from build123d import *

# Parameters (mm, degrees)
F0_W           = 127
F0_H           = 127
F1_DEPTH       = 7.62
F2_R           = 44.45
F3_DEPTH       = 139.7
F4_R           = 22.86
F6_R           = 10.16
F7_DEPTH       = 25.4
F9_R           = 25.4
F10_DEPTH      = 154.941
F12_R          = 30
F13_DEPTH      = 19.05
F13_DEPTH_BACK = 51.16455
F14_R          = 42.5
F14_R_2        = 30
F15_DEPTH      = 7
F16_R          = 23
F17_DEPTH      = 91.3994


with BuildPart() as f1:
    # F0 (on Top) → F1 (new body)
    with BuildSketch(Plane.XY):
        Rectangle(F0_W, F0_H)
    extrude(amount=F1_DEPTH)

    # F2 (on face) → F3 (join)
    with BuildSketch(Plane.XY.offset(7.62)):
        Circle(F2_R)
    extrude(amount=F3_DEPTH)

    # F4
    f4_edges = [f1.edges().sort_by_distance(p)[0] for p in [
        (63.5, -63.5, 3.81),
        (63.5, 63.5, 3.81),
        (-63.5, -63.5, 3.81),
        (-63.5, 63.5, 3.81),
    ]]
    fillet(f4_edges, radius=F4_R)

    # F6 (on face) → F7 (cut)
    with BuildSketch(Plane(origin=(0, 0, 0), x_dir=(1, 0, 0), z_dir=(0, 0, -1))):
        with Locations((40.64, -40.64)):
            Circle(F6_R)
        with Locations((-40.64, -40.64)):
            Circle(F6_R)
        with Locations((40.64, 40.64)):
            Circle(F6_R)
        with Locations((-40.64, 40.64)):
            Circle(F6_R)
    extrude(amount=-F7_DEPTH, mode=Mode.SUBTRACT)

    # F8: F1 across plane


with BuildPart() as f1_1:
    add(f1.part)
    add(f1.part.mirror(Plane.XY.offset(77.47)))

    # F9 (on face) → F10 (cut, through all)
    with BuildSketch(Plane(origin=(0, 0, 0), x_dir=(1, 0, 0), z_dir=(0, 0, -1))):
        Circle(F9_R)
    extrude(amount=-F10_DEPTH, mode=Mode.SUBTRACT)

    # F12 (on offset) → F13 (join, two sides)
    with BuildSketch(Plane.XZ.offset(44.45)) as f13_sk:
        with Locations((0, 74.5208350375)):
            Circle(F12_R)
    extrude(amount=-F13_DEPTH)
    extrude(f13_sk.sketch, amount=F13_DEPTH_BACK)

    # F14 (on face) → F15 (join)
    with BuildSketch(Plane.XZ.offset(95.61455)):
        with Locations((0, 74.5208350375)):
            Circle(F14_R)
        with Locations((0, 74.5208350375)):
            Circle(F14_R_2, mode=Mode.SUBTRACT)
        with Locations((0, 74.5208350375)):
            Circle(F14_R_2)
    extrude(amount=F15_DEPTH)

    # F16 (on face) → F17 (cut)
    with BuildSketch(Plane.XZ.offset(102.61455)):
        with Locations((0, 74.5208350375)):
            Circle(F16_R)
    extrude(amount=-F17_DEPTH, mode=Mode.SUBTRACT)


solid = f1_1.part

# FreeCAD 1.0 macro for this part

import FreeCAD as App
import Part
import Sketcher
Q = App.Units.Quantity


def edges_at(feature, points):
    """Names of the edges that pass closest to the given points."""
    edges = feature.Shape.Edges
    near = lambda p: min(range(len(edges)), key=lambda i: edges[i].distToShape(Part.Vertex(*p))[0])
    return sorted({f"Edge{near(p) + 1}" for p in points})

doc = App.newDocument("Part")
params = doc.addObject("Spreadsheet::Sheet", "Params")
for row, (alias, value) in enumerate([
    ("sketch1_width", "5 in"),
    ("pad1_length", "0.3 in"),
    ("sketch2_diameter", "3.5 in"),
    ("pad2_length", "5.5 in"),
    ("fillet_radius", "0.9 in"),
    ("sketch3_diameter", "0.8 in"),
    ("pocket1_length", "1 in"),
    ("sketch4_diameter", "2 in"),
    ("pad3_length", "0.75 in"),
    ("pad3_length2", "51.16455 mm"),
    ("pad4_length", "7 mm"),
    ("pocket3_length", "91.3994 mm"),
], start=1):
    params.set(f"A{row}", alias)
    params.set(f"B{row}", "=" + value)
    params.setAlias(f"B{row}", alias)

body = doc.addObject("PartDesign::Body", "Body")

# Sketch on XY plane
sketch1 = doc.addObject("Sketcher::SketchObject", "Sketch")
body.addObject(sketch1)
sketch1.AttachmentSupport = (doc.XY_Plane, [""])
sketch1.MapMode = "FlatFace"
sketch1.addGeometry([
    Part.LineSegment(App.Vector(-64, 64, 0), App.Vector(-64, -64, 0)),
    Part.LineSegment(App.Vector(-64, -64, 0), App.Vector(64, -64, 0)),
    Part.LineSegment(App.Vector(64, -64, 0), App.Vector(64, 64, 0)),
    Part.LineSegment(App.Vector(64, 64, 0), App.Vector(-64, 64, 0)),
], False)
sketch1.addConstraint([
    Sketcher.Constraint("Coincident", 0, 2, 1, 1),
    Sketcher.Constraint("Coincident", 1, 2, 2, 1),
    Sketcher.Constraint("Coincident", 2, 2, 3, 1),
    Sketcher.Constraint("Coincident", 3, 2, 0, 1),
    Sketcher.Constraint("Vertical", 0),
    Sketcher.Constraint("Horizontal", 1),
    Sketcher.Constraint("Vertical", 2),
    Sketcher.Constraint("Horizontal", 3),
    Sketcher.Constraint("Symmetric", 0, 2, 2, 2, -1, 1),
    Sketcher.Constraint("Equal", 3, 0),
    Sketcher.Constraint("DistanceX", 1, 1, 1, 2, Q("5 in")),
])
sketch1.setExpression("Constraints[10]", "Params.sketch1_width")
pad1 = doc.addObject("PartDesign::Pad", "Pad")
body.addObject(pad1)
pad1.Profile = sketch1
pad1.setExpression("Length", "Params.pad1_length")

# Sketch on XY plane
sketch2 = doc.addObject("Sketcher::SketchObject", "Sketch001")
body.addObject(sketch2)
sketch2.AttachmentSupport = (doc.XY_Plane, [""])
sketch2.MapMode = "FlatFace"
sketch2.AttachmentOffset = App.Placement(App.Vector(0, 0, 0.3 * 25.4), App.Rotation())
sketch2.addGeometry(Part.Circle(App.Vector(0, 0, 0), App.Vector(0, 0, 1), 44), False)
sketch2.addConstraint([
    Sketcher.Constraint("Coincident", 0, 3, -1, 1),
    Sketcher.Constraint("Diameter", 0, Q("3.5 in")),
])
sketch2.setExpression("Constraints[1]", "Params.sketch2_diameter")
pad2 = doc.addObject("PartDesign::Pad", "Pad001")
body.addObject(pad2)
pad2.Profile = sketch2
pad2.setExpression("Length", "Params.pad2_length")
doc.recompute()

fillet = doc.addObject("PartDesign::Fillet", "Fillet")
body.addObject(fillet)
fillet.Base = (pad2, edges_at(pad2, [
    (63.5, -63.5, 3.81),
    (63.5, 63.5, 3.81),
    (-63.5, -63.5, 3.81),
    (-63.5, 63.5, 3.81),
]))
fillet.setExpression("Radius", "Params.fillet_radius")

# Sketch on XY plane
sketch3 = doc.addObject("Sketcher::SketchObject", "Sketch002")
body.addObject(sketch3)
sketch3.AttachmentSupport = (doc.XY_Plane, [""])
sketch3.MapMode = "FlatFace"
sketch3.addGeometry([
    Part.Circle(App.Vector(41, 41, 0), App.Vector(0, 0, 1), 10),
    Part.Circle(App.Vector(-41, 41, 0), App.Vector(0, 0, 1), 10),
    Part.Circle(App.Vector(41, -41, 0), App.Vector(0, 0, 1), 10),
    Part.Circle(App.Vector(-41, -41, 0), App.Vector(0, 0, 1), 10),
], False)
sketch3.addConstraint([
    Sketcher.Constraint("Equal", 0, 1),
    Sketcher.Constraint("Equal", 1, 2),
    Sketcher.Constraint("Equal", 2, 3),
    Sketcher.Constraint("Symmetric", 1, 3, 2, 3, -1, 1),
    Sketcher.Constraint("Symmetric", 0, 3, 3, 3, -1, 1),
    Sketcher.Constraint("Symmetric", 0, 3, 1, 3, -2),
    Sketcher.Constraint("Diameter", 0, Q("0.8 in")),
    Sketcher.Constraint("DistanceX", -1, 1, 0, 3, Q("1.6 in")),
    Sketcher.Constraint("DistanceY", -1, 1, 0, 3, Q("1.6 in")),
])
sketch3.setExpression("Constraints[6]", "Params.sketch3_diameter")
pocket1 = doc.addObject("PartDesign::Pocket", "Pocket")
body.addObject(pocket1)
pocket1.Profile = sketch3
pocket1.setExpression("Length", "Params.pocket1_length")
pocket1.Reversed = True
body2 = doc.addObject("PartDesign::Body", "Body001")
doc.recompute()

body2.BaseFeature = body
doc.recompute()

mirroring = doc.addObject("Part::Mirroring", "Mirroring")
mirroring.Source = body
mirroring.Base = App.Vector(0, 0, 77.47)
mirroring.Normal = App.Vector(0, 0, 1)
body3 = doc.addObject("PartDesign::Body", "Body002")
body3.BaseFeature = mirroring
boolean = doc.addObject("PartDesign::Boolean", "Boolean")
body2.addObject(boolean)
boolean.Type = "Fuse"
boolean.addObjects([body3])
doc.recompute()

# Sketch on XY plane
sketch4 = doc.addObject("Sketcher::SketchObject", "Sketch003")
body2.addObject(sketch4)
sketch4.AttachmentSupport = (doc.getObject("XY_Plane001"), [""])
sketch4.MapMode = "FlatFace"
sketch4.addGeometry(Part.Circle(App.Vector(0, 0, 0), App.Vector(0, 0, 1), 25), False)
sketch4.addConstraint([
    Sketcher.Constraint("Coincident", 0, 3, -1, 1),
    Sketcher.Constraint("Diameter", 0, Q("2 in")),
])
sketch4.setExpression("Constraints[1]", "Params.sketch4_diameter")
pocket2 = doc.addObject("PartDesign::Pocket", "Pocket001")
body2.addObject(pocket2)
pocket2.Profile = sketch4
pocket2.Type = "ThroughAll"
pocket2.Reversed = True

# Sketch on XZ plane
sketch5 = doc.addObject("Sketcher::SketchObject", "Sketch004")
body2.addObject(sketch5)
sketch5.AttachmentSupport = (doc.getObject("XZ_Plane001"), [""])
sketch5.MapMode = "FlatFace"
sketch5.AttachmentOffset = App.Placement(App.Vector(0, 0, 1.75 * 25.4), App.Rotation())
sketch5.addGeometry(Part.Circle(App.Vector(0, 75, 0), App.Vector(0, 0, 1), 30), False)
sketch5.addConstraint([
    Sketcher.Constraint("PointOnObject", 0, 3, -2),
    Sketcher.Constraint("Diameter", 0, 60.0),
    Sketcher.Constraint("DistanceY", -1, 1, 0, 3, 74.520835),
])
pad3 = doc.addObject("PartDesign::Pad", "Pad002")
body2.addObject(pad3)
pad3.Profile = sketch5
pad3.Type = "TwoLengths"
pad3.setExpression("Length", "Params.pad3_length")
pad3.setExpression("Length2", "Params.pad3_length2")
pad3.Reversed = True

# Sketch on XZ plane
sketch6 = doc.addObject("Sketcher::SketchObject", "Sketch005")
body2.addObject(sketch6)
sketch6.AttachmentSupport = (doc.getObject("XZ_Plane001"), [""])
sketch6.MapMode = "FlatFace"
sketch6.AttachmentOffset = App.Placement(App.Vector(0, 0, 95.61455), App.Rotation())
sketch6.addGeometry(Part.Circle(App.Vector(0, 75, 0), App.Vector(0, 0, 1), 42), False)
sketch6.addConstraint([
    Sketcher.Constraint("PointOnObject", 0, 3, -2),
    Sketcher.Constraint("Diameter", 0, 85.0),
    Sketcher.Constraint("DistanceY", -1, 1, 0, 3, 74.520835),
])
pad4 = doc.addObject("PartDesign::Pad", "Pad003")
body2.addObject(pad4)
pad4.Profile = sketch6
pad4.setExpression("Length", "Params.pad4_length")

# Sketch on XZ plane
sketch7 = doc.addObject("Sketcher::SketchObject", "Sketch006")
body2.addObject(sketch7)
sketch7.AttachmentSupport = (doc.getObject("XZ_Plane001"), [""])
sketch7.MapMode = "FlatFace"
sketch7.AttachmentOffset = App.Placement(App.Vector(0, 0, 102.61455), App.Rotation())
sketch7.addGeometry(Part.Circle(App.Vector(0, 75, 0), App.Vector(0, 0, 1), 23), False)
sketch7.addConstraint([
    Sketcher.Constraint("PointOnObject", 0, 3, -2),
    Sketcher.Constraint("Diameter", 0, 46.0),
    Sketcher.Constraint("DistanceY", -1, 1, 0, 3, 74.520835),
])
pocket3 = doc.addObject("PartDesign::Pocket", "Pocket002")
body2.addObject(pocket3)
pocket3.Profile = sketch7
pocket3.setExpression("Length", "Params.pocket3_length")
mirroring.Visibility = False

doc.recompute()
